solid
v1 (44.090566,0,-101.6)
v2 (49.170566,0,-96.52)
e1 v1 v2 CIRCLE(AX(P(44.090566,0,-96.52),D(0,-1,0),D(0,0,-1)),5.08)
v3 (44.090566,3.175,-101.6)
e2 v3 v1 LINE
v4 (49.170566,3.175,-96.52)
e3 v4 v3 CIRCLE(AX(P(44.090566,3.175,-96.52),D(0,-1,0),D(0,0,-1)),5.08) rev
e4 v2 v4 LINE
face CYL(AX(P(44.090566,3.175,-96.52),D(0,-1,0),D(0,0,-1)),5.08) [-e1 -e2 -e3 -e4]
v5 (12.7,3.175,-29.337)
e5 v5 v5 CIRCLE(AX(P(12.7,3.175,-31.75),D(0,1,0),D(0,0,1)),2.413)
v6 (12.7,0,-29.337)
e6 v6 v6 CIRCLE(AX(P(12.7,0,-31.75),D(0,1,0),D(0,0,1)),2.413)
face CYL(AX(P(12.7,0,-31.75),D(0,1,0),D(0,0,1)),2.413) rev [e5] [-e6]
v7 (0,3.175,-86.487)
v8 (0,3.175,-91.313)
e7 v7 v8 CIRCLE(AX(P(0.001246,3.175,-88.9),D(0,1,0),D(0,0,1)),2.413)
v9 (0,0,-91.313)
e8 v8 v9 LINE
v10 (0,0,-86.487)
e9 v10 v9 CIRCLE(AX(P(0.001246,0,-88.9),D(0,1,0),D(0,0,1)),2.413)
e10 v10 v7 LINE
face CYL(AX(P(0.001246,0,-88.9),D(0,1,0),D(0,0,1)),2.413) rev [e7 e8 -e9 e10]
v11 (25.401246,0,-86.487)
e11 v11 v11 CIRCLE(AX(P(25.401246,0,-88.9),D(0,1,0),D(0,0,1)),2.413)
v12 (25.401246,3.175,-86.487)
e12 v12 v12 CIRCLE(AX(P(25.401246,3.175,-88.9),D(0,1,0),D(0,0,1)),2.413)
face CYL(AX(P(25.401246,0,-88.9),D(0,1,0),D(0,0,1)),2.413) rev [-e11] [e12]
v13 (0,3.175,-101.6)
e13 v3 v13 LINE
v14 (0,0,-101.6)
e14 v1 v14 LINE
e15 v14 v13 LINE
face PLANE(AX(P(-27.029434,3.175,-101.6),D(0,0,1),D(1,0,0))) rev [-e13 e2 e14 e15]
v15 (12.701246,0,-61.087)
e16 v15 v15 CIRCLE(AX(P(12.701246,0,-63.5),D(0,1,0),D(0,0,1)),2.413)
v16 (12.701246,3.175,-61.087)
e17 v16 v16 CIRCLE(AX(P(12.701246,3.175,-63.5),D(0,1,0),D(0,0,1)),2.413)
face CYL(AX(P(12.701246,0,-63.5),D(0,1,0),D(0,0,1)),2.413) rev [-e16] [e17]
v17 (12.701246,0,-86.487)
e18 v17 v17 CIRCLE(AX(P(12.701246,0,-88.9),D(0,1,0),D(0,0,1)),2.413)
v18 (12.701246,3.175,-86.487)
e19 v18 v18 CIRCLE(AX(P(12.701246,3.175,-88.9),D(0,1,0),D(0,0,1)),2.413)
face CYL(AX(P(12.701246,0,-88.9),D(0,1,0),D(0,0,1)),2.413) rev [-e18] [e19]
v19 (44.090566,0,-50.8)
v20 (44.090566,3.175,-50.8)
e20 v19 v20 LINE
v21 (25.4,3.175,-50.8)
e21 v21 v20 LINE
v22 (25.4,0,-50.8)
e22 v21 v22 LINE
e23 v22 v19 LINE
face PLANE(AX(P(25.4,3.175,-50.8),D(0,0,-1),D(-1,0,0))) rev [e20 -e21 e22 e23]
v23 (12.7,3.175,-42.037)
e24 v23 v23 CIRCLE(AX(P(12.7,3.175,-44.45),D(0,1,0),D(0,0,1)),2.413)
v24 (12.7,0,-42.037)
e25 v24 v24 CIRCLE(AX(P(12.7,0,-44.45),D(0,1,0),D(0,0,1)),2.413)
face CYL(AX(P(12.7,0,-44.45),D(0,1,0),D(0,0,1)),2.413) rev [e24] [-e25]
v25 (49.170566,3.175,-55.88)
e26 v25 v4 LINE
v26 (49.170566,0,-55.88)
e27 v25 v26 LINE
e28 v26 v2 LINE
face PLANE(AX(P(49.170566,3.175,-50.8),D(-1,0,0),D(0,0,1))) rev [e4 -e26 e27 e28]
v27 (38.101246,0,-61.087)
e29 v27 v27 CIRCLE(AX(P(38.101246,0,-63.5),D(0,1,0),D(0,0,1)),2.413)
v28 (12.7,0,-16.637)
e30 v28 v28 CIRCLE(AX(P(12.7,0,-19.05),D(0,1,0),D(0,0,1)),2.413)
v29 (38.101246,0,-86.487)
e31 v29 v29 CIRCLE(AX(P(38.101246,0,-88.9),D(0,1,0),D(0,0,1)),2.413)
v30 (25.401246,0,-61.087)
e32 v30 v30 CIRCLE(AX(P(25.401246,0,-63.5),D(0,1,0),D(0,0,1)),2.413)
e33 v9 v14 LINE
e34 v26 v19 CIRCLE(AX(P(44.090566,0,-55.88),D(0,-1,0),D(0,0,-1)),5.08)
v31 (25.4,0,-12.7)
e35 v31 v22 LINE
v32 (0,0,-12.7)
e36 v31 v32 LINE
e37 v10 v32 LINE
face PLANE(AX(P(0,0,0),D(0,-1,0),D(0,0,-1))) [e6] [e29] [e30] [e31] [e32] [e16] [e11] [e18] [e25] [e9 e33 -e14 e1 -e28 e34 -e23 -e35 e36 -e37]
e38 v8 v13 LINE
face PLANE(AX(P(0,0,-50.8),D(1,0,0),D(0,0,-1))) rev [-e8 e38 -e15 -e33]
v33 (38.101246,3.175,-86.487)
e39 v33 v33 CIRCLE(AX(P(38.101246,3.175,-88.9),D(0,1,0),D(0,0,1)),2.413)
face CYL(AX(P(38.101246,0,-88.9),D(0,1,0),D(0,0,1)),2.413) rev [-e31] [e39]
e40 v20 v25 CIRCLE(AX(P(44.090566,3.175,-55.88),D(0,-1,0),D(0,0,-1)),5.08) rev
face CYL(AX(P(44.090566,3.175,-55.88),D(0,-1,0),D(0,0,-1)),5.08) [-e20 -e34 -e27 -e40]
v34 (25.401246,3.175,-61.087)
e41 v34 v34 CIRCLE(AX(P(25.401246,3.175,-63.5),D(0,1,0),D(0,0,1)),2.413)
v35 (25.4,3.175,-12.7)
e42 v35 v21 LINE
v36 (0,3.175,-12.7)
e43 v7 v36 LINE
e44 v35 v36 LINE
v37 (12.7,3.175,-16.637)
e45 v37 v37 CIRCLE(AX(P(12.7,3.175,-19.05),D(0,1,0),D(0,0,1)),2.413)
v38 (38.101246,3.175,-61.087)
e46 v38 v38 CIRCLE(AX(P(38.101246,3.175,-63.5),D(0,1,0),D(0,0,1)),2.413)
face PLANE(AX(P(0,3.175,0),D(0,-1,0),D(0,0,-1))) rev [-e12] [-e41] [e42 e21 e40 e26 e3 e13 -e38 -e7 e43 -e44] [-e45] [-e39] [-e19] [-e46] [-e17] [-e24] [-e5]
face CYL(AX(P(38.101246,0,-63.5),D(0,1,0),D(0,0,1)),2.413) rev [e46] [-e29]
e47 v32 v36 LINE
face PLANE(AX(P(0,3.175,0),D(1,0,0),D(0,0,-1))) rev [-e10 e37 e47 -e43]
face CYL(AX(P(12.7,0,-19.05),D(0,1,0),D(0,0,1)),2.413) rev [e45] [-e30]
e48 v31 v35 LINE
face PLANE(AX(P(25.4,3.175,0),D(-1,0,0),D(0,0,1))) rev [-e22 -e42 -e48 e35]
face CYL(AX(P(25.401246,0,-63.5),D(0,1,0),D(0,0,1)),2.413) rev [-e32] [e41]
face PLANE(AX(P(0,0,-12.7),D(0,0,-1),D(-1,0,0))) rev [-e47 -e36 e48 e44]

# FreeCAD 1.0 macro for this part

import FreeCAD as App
import Part
import Sketcher
Q = App.Units.Quantity


def edges_at(feature, points):
    """Names of the edges that pass closest to the given points."""
    edges = feature.Shape.Edges
    near = lambda p: min(range(len(edges)), key=lambda i: edges[i].distToShape(Part.Vertex(*p))[0])
    return sorted({f"Edge{near(p) + 1}" for p in points})


def add_polygon(sketch, points):
    """Adds a closed chain of lines whose ends are joined by coincident constraints."""
    first, n = sketch.GeometryCount, len(points)
    for a, b in zip(points, points[1:] + points[:1]):
        sketch.addGeometry(Part.LineSegment(App.Vector(*a, 0), App.Vector(*b, 0)), False)
    for i in range(n):
        sketch.addConstraint(Sketcher.Constraint("Coincident", first + i, 2, first + (i + 1) % n, 1))

doc = App.newDocument("Part")
body = doc.addObject("PartDesign::Body", "Body")

sketch1 = body.newObject("Sketcher::SketchObject", "Sketch")
sketch1.AttachmentSupport = (doc.getObject("XZ_Plane"), [""])
sketch1.MapMode = "FlatFace"
add_polygon(sketch1, [(25, -51), (49, -51), (49, -102), (-27, -102), (-27, -51), (0, -51), (0, 0), (25, 0)])
sketch1.addConstraint(Sketcher.Constraint("Horizontal", 0))
sketch1.addConstraint(Sketcher.Constraint("Vertical", 1))
sketch1.addConstraint(Sketcher.Constraint("Horizontal", 2))
sketch1.addConstraint(Sketcher.Constraint("Vertical", 3))
sketch1.addConstraint(Sketcher.Constraint("Horizontal", 4))
sketch1.addConstraint(Sketcher.Constraint("Vertical", 5))
sketch1.addConstraint(Sketcher.Constraint("Horizontal", 6))
sketch1.addConstraint(Sketcher.Constraint("Vertical", 7))
sketch1.addConstraint(Sketcher.Constraint("Coincident", 5, 2, -1, 1))
sketch1.addConstraint(Sketcher.Constraint("Horizontal", 0, 2, 3, 2))
sketch1.addConstraint(Sketcher.Constraint("Equal", 3, 5))
sketch1.addConstraint(Sketcher.Constraint("DistanceX", 2, 2, 2, 1, Q("3 in")))
sketch1.addConstraint(Sketcher.Constraint("DistanceX", 6, 1, 6, 2, Q("1 in")))
sketch1.addConstraint(Sketcher.Constraint("DistanceY", 1, 2, 1, 1, Q("2 in")))
sketch1.addConstraint(Sketcher.Constraint("DistanceX", 0, 1, 0, 2, Q("23.770566 mm")))
pad1 = body.newObject("PartDesign::Pad", "Pad")
pad1.Profile = sketch1
pad1.Length = Q("0.125 in")
pad1.Reversed = True
doc.recompute()

fillet = body.newObject("PartDesign::Fillet", "Fillet")
fillet.Base = (pad1, edges_at(pad1, [
    (-27.029, 1.587, -50.8),
    (-27.029, 1.587, -101.6),
    (49.171, 1.587, -101.6),
    (49.171, 1.587, -50.8),
    (25.4, 1.587, 0),
    (0, 1.587, 0),
]))
fillet.Radius = Q("0.2 in")

sketch2 = body.newObject("Sketcher::SketchObject", "Sketch001")
sketch2.AttachmentSupport = (doc.getObject("XZ_Plane"), [""])
sketch2.MapMode = "FlatFace"
sketch2.AttachmentOffset = App.Placement(App.Vector(0, 0, -0.125 * 25.4), App.Rotation())
sketch2.addGeometry(Part.Circle(App.Vector(12.7, -19.1, 0), App.Vector(0, 0, 1), 2.4), False)
sketch2.addGeometry(Part.Circle(App.Vector(12.7, -31.8, 0), App.Vector(0, 0, 1), 2.4), False)
sketch2.addGeometry(Part.Circle(App.Vector(12.7, -44.5, 0), App.Vector(0, 0, 1), 2.4), False)
sketch2.addGeometry(Part.Circle(App.Vector(-12.7, -88.9, 0), App.Vector(0, 0, 1), 2.4), False)
sketch2.addGeometry(Part.Circle(App.Vector(0, -88.9, 0), App.Vector(0, 0, 1), 2.4), False)
sketch2.addGeometry(Part.Circle(App.Vector(12.7, -88.9, 0), App.Vector(0, 0, 1), 2.4), False)
sketch2.addGeometry(Part.Circle(App.Vector(25.4, -88.9, 0), App.Vector(0, 0, 1), 2.4), False)
sketch2.addGeometry(Part.Circle(App.Vector(38.1, -88.9, 0), App.Vector(0, 0, 1), 2.4), False)
sketch2.addGeometry(Part.Circle(App.Vector(12.7, -63.5, 0), App.Vector(0, 0, 1), 2.4), False)
sketch2.addGeometry(Part.Circle(App.Vector(25.4, -63.5, 0), App.Vector(0, 0, 1), 2.4), False)
sketch2.addGeometry(Part.Circle(App.Vector(38.1, -63.5, 0), App.Vector(0, 0, 1), 2.4), False)
add_polygon(sketch2, [(0, -12.7), (0, 0), (25.4, 0), (25.4, -12.7)])
sketch2.addConstraint(Sketcher.Constraint("Vertical", 11))
sketch2.addConstraint(Sketcher.Constraint("Horizontal", 12))
sketch2.addConstraint(Sketcher.Constraint("Vertical", 13))
sketch2.addConstraint(Sketcher.Constraint("Horizontal", 14))
sketch2.addConstraint(Sketcher.Constraint("Coincident", 11, 2, -1, 1))
sketch2.addConstraint(Sketcher.Constraint("Equal", 0, 1))
sketch2.addConstraint(Sketcher.Constraint("Equal", 1, 2))
sketch2.addConstraint(Sketcher.Constraint("Equal", 2, 3))
sketch2.addConstraint(Sketcher.Constraint("Equal", 3, 4))
sketch2.addConstraint(Sketcher.Constraint("Equal", 4, 5))
sketch2.addConstraint(Sketcher.Constraint("Equal", 5, 6))
sketch2.addConstraint(Sketcher.Constraint("Equal", 6, 7))
sketch2.addConstraint(Sketcher.Constraint("Equal", 7, 8))
sketch2.addConstraint(Sketcher.Constraint("Equal", 8, 9))
sketch2.addConstraint(Sketcher.Constraint("Equal", 9, 10))
sketch2.addConstraint(Sketcher.Constraint("Horizontal", 3, 3, 4, 3))
sketch2.addConstraint(Sketcher.Constraint("Horizontal", 4, 3, 5, 3))
sketch2.addConstraint(Sketcher.Constraint("Horizontal", 5, 3, 6, 3))
sketch2.addConstraint(Sketcher.Constraint("Horizontal", 6, 3, 7, 3))
sketch2.addConstraint(Sketcher.Constraint("Horizontal", 8, 3, 9, 3))
sketch2.addConstraint(Sketcher.Constraint("Horizontal", 9, 3, 10, 3))
sketch2.addConstraint(Sketcher.Constraint("Vertical", 0, 3, 1, 3))
sketch2.addConstraint(Sketcher.Constraint("Vertical", 1, 3, 2, 3))
sketch2.addConstraint(Sketcher.Constraint("Vertical", 5, 3, 8, 3))
sketch2.addConstraint(Sketcher.Constraint("Vertical", 6, 3, 9, 3))
sketch2.addConstraint(Sketcher.Constraint("Vertical", 7, 3, 10, 3))
sketch2.addConstraint(Sketcher.Constraint("Diameter", 0, Q("0.19 in")))
sketch2.addConstraint(Sketcher.Constraint("DistanceX", 12, 1, 12, 2, Q("1 in")))
sketch2.addConstraint(Sketcher.Constraint("DistanceY", 11, 1, 11, 2, Q("0.5 in")))
sketch2.addConstraint(Sketcher.Constraint("DistanceY", 2, 3, 0, 3, Q("1 in")))
sketch2.addConstraint(Sketcher.Constraint("DistanceX", 3, 3, 5, 3, Q("1 in")))
sketch2.addConstraint(Sketcher.Constraint("DistanceX", 4, 3, 6, 3, Q("1 in")))
sketch2.addConstraint(Sketcher.Constraint("DistanceX", 5, 3, 7, 3, Q("1 in")))
sketch2.addConstraint(Sketcher.Constraint("DistanceY", 5, 3, 8, 3, Q("1 in")))
sketch2.addConstraint(Sketcher.Constraint("DistanceX", -1, 1, 0, 3, Q("0.5 in")))
sketch2.addConstraint(Sketcher.Constraint("DistanceY", 3, 3, -1, 1, Q("3.5 in")))
sketch2.addConstraint(Sketcher.Constraint("DistanceY", 1, 3, 0, 3, Q("0.5 in")))
sketch2.addConstraint(Sketcher.Constraint("DistanceX", 3, 3, 4, 3, Q("0.5 in")))
sketch2.addConstraint(Sketcher.Constraint("DistanceY", 0, 3, -1, 1, Q("0.75 in")))
sketch2.addConstraint(Sketcher.Constraint("DistanceX", 3, 3, -1, 1, Q("12.698754 mm")))
pocket1 = body.newObject("PartDesign::Pocket", "Pocket")
pocket1.Profile = sketch2
pocket1.Type = "ThroughAll"
pocket1.Reversed = True

sketch3 = body.newObject("Sketcher::SketchObject", "Sketch002")
sketch3.AttachmentSupport = (doc.getObject("XZ_Plane"), [""])
sketch3.MapMode = "FlatFace"
sketch3.AttachmentOffset = App.Placement(App.Vector(0, 0, -0.125 * 25.4), App.Rotation())
add_polygon(sketch3, [(-28, -102), (-28, -51), (0, -51), (0, -102)])
sketch3.addConstraint(Sketcher.Constraint("Vertical", 0))
sketch3.addConstraint(Sketcher.Constraint("Horizontal", 1))
sketch3.addConstraint(Sketcher.Constraint("Vertical", 2))
sketch3.addConstraint(Sketcher.Constraint("Horizontal", 3))
sketch3.addConstraint(Sketcher.Constraint("PointOnObject", 1, 2, -2))
sketch3.addConstraint(Sketcher.Constraint("DistanceY", 0, 1, 0, 2, Q("2 in")))
sketch3.addConstraint(Sketcher.Constraint("DistanceX", 1, 1, 1, 2, Q("1.1 in")))
sketch3.addConstraint(Sketcher.Constraint("DistanceY", 0, 2, -1, 1, Q("2 in")))
pocket2 = body.newObject("PartDesign::Pocket", "Pocket001")
pocket2.Profile = sketch3
pocket2.Type = "ThroughAll"
pocket2.Reversed = True

doc.recompute()
